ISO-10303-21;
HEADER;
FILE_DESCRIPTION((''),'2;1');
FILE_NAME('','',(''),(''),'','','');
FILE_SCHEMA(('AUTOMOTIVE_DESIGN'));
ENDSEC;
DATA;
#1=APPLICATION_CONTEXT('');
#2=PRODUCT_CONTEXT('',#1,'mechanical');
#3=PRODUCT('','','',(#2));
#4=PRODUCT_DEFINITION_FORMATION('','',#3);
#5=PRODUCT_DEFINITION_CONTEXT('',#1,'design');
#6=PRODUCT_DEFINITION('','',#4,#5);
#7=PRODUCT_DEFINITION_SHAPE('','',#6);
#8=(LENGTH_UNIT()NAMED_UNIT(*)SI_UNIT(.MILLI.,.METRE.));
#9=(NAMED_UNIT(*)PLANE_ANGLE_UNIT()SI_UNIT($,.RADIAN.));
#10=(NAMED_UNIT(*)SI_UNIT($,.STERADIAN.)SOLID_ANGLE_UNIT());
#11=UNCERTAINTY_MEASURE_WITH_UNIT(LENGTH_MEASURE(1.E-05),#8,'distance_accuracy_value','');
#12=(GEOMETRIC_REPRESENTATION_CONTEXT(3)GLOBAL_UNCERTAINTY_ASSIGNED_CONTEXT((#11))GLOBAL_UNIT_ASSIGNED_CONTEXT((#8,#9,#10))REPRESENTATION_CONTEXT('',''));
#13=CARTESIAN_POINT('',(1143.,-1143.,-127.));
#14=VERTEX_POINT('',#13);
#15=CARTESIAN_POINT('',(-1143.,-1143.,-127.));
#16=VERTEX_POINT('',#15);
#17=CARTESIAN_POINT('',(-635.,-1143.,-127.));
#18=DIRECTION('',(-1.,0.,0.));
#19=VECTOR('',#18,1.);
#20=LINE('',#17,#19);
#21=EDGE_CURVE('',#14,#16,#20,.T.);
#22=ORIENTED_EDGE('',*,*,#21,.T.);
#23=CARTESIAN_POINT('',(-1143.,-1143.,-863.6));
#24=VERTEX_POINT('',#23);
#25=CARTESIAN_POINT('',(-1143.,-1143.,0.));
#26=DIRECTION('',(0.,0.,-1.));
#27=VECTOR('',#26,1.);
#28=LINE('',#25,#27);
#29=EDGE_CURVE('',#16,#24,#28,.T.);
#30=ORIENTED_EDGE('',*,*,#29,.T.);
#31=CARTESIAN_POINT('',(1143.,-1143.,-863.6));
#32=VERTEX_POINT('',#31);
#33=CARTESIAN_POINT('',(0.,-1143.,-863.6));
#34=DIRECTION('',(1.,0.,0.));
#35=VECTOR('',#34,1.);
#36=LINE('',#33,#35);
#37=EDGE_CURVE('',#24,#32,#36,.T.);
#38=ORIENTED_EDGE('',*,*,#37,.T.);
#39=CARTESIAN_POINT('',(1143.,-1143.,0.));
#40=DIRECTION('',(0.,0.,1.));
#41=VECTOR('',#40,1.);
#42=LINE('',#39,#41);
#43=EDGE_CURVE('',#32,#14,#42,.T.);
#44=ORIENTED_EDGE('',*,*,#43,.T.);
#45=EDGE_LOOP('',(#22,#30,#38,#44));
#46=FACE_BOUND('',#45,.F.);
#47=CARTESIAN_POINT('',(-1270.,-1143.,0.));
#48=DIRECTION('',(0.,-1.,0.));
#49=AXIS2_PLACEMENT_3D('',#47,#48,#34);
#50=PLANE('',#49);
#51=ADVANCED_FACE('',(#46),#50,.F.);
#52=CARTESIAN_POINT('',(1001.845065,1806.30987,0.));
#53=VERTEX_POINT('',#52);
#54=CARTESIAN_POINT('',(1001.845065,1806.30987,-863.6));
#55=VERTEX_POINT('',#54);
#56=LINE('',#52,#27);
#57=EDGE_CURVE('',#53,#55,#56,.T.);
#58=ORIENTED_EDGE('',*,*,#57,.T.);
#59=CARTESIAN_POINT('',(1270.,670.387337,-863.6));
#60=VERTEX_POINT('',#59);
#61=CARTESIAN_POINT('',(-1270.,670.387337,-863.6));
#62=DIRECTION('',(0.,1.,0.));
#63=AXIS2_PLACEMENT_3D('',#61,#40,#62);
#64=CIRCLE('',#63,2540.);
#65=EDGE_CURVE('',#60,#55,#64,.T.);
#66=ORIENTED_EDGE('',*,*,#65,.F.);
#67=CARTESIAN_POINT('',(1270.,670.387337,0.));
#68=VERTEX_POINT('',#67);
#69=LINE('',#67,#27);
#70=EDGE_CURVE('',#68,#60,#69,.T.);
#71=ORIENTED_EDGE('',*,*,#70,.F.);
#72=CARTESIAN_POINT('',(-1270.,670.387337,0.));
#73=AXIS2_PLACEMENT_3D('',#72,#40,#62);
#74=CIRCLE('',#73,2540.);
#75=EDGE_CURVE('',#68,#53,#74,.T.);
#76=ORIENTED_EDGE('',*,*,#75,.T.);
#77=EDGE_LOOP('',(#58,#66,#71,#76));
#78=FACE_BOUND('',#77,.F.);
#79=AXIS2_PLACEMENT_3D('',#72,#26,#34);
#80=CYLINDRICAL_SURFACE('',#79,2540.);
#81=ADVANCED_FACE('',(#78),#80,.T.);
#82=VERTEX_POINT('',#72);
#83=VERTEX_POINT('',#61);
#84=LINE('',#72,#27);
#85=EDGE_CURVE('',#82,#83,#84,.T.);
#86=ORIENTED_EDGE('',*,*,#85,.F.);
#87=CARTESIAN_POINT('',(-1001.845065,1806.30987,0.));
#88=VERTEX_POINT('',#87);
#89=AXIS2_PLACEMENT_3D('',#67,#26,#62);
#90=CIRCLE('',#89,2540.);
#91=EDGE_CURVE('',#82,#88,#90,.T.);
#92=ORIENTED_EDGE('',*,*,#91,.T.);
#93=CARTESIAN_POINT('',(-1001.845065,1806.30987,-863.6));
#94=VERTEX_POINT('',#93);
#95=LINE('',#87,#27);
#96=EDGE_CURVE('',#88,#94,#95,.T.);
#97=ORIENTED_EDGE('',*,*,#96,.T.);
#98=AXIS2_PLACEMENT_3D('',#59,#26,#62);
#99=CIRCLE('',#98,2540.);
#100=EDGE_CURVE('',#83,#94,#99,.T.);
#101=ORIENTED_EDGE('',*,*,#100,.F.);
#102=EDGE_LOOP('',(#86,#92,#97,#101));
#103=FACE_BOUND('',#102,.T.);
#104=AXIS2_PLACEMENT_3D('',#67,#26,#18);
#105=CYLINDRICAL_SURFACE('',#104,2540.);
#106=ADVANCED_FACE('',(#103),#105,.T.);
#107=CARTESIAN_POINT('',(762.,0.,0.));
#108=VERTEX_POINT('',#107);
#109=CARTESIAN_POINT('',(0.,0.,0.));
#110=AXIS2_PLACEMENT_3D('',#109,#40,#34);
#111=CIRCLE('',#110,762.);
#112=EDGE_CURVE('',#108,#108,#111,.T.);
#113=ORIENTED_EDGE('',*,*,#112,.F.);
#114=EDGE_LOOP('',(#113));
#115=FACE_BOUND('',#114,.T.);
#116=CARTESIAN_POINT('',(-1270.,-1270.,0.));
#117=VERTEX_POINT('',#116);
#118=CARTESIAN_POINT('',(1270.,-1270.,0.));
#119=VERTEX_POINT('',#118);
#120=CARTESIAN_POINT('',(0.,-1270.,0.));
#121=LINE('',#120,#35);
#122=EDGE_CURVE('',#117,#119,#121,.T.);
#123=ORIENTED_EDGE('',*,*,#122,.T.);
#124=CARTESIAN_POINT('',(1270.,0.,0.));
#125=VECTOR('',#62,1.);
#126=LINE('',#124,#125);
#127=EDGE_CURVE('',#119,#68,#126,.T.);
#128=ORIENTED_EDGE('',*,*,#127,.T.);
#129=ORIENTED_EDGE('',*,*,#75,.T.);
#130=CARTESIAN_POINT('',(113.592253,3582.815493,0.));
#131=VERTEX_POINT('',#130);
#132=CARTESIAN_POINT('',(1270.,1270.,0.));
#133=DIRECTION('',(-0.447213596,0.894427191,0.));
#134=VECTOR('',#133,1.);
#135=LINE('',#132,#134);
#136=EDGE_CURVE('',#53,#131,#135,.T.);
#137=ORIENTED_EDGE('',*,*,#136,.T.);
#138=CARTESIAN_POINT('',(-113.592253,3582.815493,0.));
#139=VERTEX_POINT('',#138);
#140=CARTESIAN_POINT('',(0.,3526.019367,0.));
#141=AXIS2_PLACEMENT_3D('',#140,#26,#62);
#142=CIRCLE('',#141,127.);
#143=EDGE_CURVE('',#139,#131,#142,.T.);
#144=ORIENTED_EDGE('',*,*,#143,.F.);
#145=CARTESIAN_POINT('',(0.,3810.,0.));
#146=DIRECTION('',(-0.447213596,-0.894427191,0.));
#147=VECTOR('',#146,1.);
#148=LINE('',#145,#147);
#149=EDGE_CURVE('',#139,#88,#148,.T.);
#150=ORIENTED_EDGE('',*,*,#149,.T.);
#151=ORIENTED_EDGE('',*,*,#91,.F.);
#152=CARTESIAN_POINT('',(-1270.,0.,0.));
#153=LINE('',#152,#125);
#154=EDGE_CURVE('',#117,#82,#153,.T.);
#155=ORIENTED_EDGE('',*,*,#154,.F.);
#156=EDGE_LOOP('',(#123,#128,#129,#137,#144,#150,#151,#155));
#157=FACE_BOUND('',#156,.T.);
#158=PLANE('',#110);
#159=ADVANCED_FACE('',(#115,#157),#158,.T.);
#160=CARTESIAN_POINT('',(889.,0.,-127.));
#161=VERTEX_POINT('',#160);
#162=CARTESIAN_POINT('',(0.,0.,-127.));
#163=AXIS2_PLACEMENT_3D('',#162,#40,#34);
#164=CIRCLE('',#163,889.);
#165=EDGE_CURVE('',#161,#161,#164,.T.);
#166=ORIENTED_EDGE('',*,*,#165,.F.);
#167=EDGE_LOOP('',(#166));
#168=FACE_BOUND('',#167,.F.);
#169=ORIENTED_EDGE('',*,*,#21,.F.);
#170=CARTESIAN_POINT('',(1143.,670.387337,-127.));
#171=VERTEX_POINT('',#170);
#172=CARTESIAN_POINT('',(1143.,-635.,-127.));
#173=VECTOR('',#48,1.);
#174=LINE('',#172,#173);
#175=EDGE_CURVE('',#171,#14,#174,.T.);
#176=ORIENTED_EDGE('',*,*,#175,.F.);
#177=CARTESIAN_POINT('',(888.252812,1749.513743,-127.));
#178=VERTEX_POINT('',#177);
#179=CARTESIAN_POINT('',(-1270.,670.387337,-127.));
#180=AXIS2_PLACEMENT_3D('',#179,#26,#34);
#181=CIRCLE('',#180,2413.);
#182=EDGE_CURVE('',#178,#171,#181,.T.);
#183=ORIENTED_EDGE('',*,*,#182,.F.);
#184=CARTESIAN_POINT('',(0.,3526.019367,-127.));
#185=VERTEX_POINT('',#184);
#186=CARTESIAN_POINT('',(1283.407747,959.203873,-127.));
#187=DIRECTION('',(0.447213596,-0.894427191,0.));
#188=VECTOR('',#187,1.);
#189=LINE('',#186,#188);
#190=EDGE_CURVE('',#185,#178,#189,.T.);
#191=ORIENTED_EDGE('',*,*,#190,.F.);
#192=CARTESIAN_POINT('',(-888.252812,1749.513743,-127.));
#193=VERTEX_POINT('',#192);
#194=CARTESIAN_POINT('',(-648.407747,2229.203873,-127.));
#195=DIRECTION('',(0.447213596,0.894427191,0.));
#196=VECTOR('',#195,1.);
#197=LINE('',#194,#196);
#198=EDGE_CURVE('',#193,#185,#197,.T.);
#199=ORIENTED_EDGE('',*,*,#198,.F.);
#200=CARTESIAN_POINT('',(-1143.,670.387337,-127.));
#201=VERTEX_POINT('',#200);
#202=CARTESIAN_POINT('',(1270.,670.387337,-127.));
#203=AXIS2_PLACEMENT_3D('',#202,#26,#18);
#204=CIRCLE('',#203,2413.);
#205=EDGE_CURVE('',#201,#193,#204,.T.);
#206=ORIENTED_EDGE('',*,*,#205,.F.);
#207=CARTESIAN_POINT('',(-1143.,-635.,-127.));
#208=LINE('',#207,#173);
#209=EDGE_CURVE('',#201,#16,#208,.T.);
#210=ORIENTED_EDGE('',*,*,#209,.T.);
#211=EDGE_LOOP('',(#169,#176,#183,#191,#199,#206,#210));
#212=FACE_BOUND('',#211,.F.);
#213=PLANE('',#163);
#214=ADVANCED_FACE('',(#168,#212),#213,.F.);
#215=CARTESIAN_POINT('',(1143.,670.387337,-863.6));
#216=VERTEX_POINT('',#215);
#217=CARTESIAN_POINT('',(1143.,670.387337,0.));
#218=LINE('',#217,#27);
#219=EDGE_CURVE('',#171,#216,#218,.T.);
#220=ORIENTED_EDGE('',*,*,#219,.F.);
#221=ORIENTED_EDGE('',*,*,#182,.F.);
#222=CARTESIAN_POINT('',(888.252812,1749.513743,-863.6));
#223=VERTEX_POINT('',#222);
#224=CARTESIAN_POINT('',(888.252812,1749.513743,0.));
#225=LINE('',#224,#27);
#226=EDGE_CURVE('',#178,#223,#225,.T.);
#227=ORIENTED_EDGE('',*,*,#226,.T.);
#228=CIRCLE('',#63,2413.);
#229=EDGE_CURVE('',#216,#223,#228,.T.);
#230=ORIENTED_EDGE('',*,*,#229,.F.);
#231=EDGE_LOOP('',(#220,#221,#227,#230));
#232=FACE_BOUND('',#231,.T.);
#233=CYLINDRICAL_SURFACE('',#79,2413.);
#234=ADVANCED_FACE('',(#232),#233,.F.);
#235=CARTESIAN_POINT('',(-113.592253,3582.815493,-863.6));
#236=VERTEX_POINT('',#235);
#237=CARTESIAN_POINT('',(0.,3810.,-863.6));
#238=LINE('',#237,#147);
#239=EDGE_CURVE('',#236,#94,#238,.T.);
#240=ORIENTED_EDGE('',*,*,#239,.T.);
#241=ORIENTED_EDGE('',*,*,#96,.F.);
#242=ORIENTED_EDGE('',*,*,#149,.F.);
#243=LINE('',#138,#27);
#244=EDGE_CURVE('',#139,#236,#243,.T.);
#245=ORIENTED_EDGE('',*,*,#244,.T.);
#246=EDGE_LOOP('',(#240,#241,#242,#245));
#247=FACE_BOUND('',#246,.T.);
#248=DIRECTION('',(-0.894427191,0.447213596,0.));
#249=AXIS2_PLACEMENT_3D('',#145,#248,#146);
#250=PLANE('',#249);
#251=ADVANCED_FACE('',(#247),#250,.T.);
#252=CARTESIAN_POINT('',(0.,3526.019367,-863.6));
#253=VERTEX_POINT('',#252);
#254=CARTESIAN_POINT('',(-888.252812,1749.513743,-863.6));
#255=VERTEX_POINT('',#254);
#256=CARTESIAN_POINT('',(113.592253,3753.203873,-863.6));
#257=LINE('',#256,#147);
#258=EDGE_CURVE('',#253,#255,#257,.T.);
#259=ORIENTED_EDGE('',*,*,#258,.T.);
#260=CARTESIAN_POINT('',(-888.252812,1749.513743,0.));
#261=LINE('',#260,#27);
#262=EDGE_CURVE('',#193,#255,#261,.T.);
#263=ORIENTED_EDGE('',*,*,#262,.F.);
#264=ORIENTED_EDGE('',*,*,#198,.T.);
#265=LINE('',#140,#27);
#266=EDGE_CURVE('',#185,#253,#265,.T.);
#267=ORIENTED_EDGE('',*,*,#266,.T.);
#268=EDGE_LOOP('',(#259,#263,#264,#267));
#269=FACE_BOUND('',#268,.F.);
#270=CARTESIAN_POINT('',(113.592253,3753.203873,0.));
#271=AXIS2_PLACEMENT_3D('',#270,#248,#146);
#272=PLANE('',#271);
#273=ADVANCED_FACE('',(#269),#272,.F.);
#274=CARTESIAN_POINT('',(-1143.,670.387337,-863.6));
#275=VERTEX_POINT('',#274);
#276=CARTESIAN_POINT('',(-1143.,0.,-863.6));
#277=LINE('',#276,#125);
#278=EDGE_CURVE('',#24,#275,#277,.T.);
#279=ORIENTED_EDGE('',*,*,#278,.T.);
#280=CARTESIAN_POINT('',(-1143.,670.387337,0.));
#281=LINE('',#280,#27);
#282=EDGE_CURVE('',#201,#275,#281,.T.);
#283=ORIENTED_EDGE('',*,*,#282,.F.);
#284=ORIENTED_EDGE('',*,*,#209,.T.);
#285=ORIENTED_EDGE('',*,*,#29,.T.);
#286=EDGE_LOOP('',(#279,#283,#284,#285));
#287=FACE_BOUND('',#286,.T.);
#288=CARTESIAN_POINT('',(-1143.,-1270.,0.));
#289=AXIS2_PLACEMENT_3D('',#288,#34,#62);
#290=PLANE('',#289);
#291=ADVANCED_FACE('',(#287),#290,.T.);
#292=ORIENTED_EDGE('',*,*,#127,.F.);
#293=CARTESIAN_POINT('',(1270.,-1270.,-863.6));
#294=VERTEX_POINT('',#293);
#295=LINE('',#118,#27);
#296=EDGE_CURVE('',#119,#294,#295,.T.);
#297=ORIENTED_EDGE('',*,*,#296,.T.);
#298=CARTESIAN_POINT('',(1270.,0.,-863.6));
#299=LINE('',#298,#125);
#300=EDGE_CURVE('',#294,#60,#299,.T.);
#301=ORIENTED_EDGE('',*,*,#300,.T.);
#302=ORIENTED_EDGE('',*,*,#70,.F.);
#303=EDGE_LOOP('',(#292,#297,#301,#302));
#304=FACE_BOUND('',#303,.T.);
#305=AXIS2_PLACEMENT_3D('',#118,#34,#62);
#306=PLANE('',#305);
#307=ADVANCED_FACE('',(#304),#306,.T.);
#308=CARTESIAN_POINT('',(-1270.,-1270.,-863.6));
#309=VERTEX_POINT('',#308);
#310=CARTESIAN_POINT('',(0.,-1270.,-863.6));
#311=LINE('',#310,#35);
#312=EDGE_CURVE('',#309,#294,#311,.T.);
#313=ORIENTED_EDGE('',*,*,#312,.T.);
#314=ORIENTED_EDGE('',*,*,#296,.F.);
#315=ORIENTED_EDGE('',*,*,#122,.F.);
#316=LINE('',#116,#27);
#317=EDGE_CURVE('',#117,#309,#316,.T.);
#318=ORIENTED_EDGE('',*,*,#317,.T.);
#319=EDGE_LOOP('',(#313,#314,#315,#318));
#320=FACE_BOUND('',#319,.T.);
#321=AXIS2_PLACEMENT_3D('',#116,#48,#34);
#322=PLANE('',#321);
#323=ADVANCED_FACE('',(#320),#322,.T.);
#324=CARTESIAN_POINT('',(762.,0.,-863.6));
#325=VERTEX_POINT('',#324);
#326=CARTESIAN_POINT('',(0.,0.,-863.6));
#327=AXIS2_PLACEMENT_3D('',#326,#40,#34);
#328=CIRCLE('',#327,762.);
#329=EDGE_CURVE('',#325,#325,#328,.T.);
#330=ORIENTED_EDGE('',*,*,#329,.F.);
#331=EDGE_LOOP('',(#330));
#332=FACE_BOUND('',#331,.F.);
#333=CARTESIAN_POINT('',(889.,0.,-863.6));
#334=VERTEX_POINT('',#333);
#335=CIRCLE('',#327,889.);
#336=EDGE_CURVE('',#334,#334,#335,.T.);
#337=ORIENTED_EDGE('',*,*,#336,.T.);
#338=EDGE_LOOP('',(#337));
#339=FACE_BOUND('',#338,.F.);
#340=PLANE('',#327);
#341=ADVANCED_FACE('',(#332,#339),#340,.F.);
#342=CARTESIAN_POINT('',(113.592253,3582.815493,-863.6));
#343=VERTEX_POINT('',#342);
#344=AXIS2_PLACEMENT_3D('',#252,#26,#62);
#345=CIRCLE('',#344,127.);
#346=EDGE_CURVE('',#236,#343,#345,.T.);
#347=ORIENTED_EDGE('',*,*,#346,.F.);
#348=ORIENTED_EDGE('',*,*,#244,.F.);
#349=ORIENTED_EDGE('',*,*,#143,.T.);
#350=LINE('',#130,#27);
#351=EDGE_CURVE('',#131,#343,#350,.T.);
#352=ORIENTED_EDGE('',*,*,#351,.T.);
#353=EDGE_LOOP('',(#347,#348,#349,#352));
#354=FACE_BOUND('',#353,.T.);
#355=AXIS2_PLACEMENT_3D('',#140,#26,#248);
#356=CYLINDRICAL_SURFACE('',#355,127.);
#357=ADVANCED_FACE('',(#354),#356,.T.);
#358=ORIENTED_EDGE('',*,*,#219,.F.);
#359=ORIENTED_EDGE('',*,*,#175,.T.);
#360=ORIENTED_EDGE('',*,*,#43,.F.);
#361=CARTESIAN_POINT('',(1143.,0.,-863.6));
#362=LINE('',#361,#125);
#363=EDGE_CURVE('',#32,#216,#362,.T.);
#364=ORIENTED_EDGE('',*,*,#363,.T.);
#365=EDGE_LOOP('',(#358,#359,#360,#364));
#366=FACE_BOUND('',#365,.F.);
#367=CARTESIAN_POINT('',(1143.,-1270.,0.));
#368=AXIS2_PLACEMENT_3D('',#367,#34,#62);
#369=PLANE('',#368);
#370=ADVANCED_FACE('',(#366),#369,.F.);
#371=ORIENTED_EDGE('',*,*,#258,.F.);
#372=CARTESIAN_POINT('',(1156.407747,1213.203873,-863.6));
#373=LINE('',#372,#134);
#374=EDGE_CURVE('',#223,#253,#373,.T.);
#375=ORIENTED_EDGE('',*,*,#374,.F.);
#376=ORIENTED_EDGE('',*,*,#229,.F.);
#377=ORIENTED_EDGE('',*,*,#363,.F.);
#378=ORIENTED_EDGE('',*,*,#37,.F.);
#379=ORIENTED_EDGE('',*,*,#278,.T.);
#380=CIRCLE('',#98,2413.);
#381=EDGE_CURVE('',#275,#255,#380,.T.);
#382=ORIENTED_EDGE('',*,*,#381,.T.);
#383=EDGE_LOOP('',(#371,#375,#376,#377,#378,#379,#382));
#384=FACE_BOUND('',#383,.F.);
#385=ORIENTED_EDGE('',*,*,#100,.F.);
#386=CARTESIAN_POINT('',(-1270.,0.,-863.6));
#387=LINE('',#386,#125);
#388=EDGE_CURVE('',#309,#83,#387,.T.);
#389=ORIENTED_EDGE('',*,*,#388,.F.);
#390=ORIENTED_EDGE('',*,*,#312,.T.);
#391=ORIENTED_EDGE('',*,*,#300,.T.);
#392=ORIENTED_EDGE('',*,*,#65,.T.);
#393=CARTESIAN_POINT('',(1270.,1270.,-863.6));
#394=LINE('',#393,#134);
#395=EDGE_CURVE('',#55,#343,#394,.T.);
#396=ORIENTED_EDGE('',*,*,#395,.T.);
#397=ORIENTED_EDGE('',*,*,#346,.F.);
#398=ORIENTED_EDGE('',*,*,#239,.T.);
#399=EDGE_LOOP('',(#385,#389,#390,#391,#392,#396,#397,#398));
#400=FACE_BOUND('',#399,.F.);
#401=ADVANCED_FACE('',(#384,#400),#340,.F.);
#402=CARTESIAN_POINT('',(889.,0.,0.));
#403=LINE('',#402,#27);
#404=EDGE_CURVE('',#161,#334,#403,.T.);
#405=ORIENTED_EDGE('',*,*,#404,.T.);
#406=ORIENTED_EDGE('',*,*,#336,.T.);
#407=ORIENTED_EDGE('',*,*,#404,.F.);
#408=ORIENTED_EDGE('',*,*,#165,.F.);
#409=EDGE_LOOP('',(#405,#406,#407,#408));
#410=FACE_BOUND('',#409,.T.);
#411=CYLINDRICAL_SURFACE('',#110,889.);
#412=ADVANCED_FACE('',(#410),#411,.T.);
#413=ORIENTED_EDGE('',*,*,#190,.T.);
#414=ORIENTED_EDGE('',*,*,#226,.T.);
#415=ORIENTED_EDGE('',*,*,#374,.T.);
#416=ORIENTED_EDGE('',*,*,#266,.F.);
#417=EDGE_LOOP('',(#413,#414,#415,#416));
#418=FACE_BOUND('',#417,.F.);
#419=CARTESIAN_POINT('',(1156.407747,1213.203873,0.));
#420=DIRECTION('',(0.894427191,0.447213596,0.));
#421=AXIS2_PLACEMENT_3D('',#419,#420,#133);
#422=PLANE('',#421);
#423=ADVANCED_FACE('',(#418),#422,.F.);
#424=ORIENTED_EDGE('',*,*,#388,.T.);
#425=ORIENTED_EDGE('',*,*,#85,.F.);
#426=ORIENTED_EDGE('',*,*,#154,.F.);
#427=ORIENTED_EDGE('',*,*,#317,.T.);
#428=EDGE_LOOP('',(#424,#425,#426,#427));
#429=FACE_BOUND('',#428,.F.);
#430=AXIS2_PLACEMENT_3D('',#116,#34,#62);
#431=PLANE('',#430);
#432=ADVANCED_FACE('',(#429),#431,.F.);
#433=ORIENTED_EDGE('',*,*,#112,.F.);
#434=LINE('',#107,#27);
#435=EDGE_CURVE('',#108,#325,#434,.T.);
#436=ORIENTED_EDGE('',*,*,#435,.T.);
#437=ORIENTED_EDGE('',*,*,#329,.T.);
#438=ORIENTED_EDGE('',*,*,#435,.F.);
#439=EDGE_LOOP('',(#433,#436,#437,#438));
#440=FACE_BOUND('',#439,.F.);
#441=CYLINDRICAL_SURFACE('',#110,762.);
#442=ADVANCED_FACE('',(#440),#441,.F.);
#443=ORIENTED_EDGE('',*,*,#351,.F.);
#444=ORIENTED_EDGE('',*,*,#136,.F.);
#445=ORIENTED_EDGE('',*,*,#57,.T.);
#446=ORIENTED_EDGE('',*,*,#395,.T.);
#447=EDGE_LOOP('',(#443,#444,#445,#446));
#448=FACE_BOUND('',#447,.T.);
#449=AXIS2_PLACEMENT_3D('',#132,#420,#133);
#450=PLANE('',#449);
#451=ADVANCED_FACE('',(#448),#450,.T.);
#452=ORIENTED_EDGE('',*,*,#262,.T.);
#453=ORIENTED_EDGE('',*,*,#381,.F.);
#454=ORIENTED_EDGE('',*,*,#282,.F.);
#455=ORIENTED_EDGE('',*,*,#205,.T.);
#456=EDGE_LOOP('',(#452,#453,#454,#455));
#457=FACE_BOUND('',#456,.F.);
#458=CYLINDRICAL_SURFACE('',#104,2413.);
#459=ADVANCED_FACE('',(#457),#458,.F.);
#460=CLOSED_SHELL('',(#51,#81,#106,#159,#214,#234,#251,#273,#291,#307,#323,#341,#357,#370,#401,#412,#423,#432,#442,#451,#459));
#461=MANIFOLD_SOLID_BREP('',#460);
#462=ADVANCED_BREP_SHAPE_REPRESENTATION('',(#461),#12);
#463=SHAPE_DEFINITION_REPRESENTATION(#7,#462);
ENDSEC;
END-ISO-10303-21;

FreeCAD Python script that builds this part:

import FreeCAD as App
import Part
import Sketcher

V = App.Vector
Q = App.Units.Quantity


def edges_at(feature, points):
    """Names of the edges that pass closest to the given points."""
    edges = feature.Shape.Edges
    near = lambda p: min(range(len(edges)), key=lambda i: edges[i].distToShape(Part.Vertex(*p))[0])
    return sorted({f"Edge{near(p) + 1}" for p in points})


def faces_at(feature, points):
    """Names of the faces that lie closest to the given points."""
    faces = feature.Shape.Faces
    near = lambda p: min(range(len(faces)), key=lambda i: faces[i].distToShape(Part.Vertex(*p))[0])
    return sorted({f"Face{near(p) + 1}" for p in points})

doc = App.newDocument("Part")
body = doc.addObject("PartDesign::Body", "Body")

# Sketch on XY plane
sketch1 = doc.addObject("Sketcher::SketchObject", "Sketch")
body.addObject(sketch1)
sketch1.AttachmentSupport = (doc.XY_Plane, [""])
sketch1.MapMode = "FlatFace"
sketch1.addGeometry(Part.LineSegment(V(-1270, 1270, 0), V(-1270, -1270, 0)), False)
sketch1.addGeometry(Part.LineSegment(V(-1270, -1270, 0), V(1270, -1270, 0)), False)
sketch1.addGeometry(Part.LineSegment(V(1270, -1270, 0), V(1270, 1270, 0)), False)
sketch1.addGeometry(Part.LineSegment(V(1270, 1270, 0), V(0, 3810, 0)), False)
sketch1.addGeometry(Part.LineSegment(V(0, 3810, 0), V(-1270, 1270, 0)), False)
sketch1.addGeometry(Part.Circle(V(0, 0, 0), V(0, 0, 1), 762), False)
sketch1.addConstraint(Sketcher.Constraint("Coincident", 0, 2, 1, 1))
sketch1.addConstraint(Sketcher.Constraint("Coincident", 1, 2, 2, 1))
sketch1.addConstraint(Sketcher.Constraint("Coincident", 2, 2, 3, 1))
sketch1.addConstraint(Sketcher.Constraint("Coincident", 3, 2, 4, 1))
sketch1.addConstraint(Sketcher.Constraint("Coincident", 4, 2, 0, 1))
sketch1.addConstraint(Sketcher.Constraint("Vertical", 0))
sketch1.addConstraint(Sketcher.Constraint("Horizontal", 1))
sketch1.addConstraint(Sketcher.Constraint("Vertical", 2))
sketch1.addConstraint(Sketcher.Constraint("Coincident", 5, 3, -1, 1))
sketch1.addConstraint(Sketcher.Constraint("Symmetric", 0, 2, 2, 2, -1, 1))
sketch1.addConstraint(Sketcher.Constraint("PointOnObject", 3, 2, -2))
sketch1.addConstraint(Sketcher.Constraint("Horizontal", 2, 2, 4, 2))
sketch1.addConstraint(Sketcher.Constraint("Equal", 1, 0))
sketch1.addConstraint(Sketcher.Constraint("Diameter", 5, Q("60 in")))
sketch1.addConstraint(Sketcher.Constraint("DistanceX", 1, 1, 1, 2, Q("100 in")))
sketch1.addConstraint(Sketcher.Constraint("DistanceY", -1, 1, 3, 2, Q("150 in")))
pad1 = doc.addObject("PartDesign::Pad", "Pad")
body.addObject(pad1)
pad1.Profile = sketch1
pad1.Length = Q("34 in")
pad1.Reversed = True
doc.recompute()

fillet = doc.addObject("PartDesign::Fillet", "Fillet")
body.addObject(fillet)
fillet.Base = (pad1, edges_at(pad1, [(-1270, 1270, -431.8), (1270, 1270, -431.8)]))
fillet.Radius = Q("100 in")
doc.recompute()

thickness = doc.addObject("PartDesign::Thickness", "Thickness")
body.addObject(thickness)
thickness.Base = (fillet, faces_at(fillet, [(0, 1270, -863.6)]))
thickness.Value = Q("5 in")
thickness.Reversed = True
thickness.Join = "Arc"
doc.recompute()

fillet2 = doc.addObject("PartDesign::Fillet", "Fillet001")
body.addObject(fillet2)
fillet2.Base = (thickness, edges_at(thickness, [(0, 3810, -431.8)]))
fillet2.Radius = Q("5 in")

doc.recompute()
